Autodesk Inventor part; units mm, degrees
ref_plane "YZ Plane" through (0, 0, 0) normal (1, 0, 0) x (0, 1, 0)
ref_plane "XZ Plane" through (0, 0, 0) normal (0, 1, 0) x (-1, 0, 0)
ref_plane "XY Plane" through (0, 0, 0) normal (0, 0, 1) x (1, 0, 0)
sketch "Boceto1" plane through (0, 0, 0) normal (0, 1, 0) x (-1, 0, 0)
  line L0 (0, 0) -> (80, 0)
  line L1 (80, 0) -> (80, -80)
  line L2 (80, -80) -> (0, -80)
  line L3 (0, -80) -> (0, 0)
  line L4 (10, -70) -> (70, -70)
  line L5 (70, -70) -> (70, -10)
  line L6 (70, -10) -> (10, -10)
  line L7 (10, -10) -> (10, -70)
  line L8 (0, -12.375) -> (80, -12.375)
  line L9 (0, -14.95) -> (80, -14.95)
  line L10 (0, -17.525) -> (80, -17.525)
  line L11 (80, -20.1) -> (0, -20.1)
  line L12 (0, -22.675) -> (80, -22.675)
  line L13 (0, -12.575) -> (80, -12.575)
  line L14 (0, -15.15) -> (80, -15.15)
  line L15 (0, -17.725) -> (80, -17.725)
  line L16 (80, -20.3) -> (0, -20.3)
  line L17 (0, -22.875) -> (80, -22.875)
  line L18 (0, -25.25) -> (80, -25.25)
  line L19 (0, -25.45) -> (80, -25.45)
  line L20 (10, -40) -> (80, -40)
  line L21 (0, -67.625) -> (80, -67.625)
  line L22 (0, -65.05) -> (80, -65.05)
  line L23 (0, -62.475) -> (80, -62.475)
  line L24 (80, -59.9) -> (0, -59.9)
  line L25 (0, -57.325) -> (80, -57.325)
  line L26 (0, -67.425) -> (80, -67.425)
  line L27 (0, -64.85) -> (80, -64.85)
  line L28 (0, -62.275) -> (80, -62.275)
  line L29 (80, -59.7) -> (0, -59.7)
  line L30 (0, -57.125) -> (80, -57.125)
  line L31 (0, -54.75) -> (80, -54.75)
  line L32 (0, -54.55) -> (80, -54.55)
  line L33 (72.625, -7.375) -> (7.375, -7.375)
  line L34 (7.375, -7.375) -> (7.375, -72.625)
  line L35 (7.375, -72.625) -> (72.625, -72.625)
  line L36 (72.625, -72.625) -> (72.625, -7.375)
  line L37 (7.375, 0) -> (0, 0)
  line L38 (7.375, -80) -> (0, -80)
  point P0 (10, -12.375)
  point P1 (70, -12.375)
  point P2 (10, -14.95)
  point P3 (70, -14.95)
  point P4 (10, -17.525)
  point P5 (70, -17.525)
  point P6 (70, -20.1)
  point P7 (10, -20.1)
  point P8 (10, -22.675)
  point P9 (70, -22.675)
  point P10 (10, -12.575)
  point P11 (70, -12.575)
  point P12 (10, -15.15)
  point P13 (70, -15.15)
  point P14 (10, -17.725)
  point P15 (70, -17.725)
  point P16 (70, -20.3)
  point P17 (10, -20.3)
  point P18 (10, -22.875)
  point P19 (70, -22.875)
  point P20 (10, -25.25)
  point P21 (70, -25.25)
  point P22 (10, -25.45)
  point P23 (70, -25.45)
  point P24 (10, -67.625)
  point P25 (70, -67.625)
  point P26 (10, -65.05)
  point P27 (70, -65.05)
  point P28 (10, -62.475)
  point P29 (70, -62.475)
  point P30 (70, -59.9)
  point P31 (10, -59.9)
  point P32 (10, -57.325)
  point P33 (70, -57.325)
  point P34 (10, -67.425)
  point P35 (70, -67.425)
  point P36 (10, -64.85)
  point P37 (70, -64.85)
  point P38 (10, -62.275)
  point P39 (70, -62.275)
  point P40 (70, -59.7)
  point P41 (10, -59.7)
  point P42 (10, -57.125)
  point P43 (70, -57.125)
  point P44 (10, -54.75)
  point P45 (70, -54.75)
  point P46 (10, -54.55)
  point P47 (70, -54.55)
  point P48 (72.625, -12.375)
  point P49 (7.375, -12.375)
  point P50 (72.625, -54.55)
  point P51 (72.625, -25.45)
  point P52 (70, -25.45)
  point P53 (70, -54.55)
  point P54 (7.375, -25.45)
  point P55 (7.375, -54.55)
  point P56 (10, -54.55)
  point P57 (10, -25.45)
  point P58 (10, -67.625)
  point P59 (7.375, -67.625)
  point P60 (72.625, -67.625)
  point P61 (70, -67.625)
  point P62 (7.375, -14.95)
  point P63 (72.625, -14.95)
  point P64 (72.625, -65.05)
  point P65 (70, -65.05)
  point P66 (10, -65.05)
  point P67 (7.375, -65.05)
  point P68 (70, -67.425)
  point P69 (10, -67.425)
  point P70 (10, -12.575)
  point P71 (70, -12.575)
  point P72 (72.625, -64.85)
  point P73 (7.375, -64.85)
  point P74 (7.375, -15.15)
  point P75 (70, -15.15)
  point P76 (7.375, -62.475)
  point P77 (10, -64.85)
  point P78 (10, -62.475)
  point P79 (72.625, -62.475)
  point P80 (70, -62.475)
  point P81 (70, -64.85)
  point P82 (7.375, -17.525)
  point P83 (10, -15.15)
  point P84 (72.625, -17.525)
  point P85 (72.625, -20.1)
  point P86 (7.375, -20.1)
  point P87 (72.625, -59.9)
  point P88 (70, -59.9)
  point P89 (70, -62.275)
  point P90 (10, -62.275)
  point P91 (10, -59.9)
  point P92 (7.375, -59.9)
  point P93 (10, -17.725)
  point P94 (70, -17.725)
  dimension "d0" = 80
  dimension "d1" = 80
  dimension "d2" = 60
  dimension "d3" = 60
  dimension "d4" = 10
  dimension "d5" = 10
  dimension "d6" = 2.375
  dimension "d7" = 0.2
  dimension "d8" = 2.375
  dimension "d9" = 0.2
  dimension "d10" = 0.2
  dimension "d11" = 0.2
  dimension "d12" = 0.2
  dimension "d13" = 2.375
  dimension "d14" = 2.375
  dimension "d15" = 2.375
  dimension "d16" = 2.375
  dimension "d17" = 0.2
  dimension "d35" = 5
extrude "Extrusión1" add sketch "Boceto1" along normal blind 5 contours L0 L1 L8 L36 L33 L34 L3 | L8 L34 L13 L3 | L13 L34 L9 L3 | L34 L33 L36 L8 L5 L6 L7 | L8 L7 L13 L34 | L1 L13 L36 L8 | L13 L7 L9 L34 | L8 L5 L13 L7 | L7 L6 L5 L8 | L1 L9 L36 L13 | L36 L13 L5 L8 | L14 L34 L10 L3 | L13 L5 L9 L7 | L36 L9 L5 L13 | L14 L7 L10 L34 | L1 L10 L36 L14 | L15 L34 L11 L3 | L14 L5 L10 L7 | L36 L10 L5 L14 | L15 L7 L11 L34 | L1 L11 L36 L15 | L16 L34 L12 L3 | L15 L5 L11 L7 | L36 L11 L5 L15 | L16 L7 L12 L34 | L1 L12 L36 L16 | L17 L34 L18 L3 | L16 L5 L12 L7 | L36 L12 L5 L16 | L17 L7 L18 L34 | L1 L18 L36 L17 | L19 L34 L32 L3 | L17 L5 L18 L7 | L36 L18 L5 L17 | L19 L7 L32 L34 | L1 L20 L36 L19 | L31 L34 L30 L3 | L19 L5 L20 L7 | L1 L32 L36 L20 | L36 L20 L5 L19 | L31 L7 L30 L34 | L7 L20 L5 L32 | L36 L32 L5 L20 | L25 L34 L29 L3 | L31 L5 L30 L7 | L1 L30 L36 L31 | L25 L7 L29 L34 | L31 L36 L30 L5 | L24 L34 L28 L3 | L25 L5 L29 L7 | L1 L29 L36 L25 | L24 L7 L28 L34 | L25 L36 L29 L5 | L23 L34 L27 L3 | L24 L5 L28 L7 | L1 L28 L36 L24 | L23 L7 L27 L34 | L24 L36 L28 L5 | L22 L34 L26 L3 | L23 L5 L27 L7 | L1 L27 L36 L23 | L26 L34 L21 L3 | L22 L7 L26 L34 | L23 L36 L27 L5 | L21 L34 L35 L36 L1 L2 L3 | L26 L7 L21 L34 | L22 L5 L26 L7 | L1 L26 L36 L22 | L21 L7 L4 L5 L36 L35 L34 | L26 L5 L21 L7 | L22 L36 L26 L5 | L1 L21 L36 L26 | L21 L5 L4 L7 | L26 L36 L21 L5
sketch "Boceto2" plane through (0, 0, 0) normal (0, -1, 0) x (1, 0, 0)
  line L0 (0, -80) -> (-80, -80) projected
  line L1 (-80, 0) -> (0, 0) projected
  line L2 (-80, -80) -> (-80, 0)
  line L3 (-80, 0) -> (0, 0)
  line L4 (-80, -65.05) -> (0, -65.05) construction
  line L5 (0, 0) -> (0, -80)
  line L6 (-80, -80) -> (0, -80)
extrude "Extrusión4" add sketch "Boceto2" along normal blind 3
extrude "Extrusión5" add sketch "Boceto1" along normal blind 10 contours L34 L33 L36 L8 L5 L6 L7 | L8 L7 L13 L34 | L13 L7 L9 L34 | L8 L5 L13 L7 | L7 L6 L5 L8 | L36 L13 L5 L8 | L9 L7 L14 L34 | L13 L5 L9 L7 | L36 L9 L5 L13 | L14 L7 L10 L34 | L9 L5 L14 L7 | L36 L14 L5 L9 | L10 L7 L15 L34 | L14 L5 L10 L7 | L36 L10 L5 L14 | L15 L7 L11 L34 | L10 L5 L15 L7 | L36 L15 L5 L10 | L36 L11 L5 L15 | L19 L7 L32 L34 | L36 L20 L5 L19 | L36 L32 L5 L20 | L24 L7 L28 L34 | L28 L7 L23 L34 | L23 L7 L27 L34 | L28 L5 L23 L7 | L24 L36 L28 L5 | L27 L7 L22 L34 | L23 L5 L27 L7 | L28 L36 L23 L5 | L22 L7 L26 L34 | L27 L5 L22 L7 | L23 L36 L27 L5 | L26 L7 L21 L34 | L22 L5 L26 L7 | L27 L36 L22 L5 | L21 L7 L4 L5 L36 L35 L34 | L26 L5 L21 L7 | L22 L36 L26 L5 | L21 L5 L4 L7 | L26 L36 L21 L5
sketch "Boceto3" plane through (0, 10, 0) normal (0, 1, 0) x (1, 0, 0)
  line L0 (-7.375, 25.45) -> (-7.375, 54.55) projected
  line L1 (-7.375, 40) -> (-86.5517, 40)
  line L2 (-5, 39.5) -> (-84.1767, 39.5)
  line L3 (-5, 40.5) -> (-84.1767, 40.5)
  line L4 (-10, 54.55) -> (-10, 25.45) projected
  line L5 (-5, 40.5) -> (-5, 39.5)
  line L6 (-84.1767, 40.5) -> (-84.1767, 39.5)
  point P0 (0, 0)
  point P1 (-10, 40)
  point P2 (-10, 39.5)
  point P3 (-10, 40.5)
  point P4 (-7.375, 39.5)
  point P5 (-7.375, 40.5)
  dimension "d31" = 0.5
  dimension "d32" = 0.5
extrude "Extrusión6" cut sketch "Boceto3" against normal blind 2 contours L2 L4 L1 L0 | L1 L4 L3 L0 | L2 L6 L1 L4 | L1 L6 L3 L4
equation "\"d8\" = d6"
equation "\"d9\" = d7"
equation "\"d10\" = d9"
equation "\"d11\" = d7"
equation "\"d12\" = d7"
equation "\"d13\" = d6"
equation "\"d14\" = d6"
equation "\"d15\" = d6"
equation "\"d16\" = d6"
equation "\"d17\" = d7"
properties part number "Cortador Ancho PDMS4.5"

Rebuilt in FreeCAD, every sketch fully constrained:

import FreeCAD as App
import Part
import Sketcher
Q = App.Units.Quantity


def add_polygon(sketch, points):
    """Adds a closed chain of lines whose ends are joined by coincident constraints."""
    first, n = sketch.GeometryCount, len(points)
    for a, b in zip(points, points[1:] + points[:1]):
        sketch.addGeometry(Part.LineSegment(App.Vector(*a, 0), App.Vector(*b, 0)), False)
    for i in range(n):
        sketch.addConstraint(Sketcher.Constraint("Coincident", first + i, 2, first + (i + 1) % n, 1))

doc = App.newDocument("Part")
params = doc.addObject("Spreadsheet::Sheet", "Params")
for row, (alias, value) in enumerate([
    ("sketch1_width", "80 mm"),
    ("sketch1_height", "29.1 mm"),
    ("pad1_length", "5 mm"),
    ("sketch2_width", "80 mm"),
    ("pad2_length", "3 mm"),
    ("sketch3_width", "60 mm"),
    ("sketch3_height", "29.1 mm"),
    ("sketch3_width2", "65.25 mm"),
    ("pad3_length", "10 mm"),
    ("sketch4_height", "1 mm"),
    ("pocket1_length", "2 mm"),
], start=1):
    params.set(f"A{row}", alias)
    params.set(f"B{row}", "=" + value)
    params.setAlias(f"B{row}", alias)

body = doc.addObject("PartDesign::Body", "Body")
body.AllowCompound = True

# Sketch on XZ plane
sketch1 = body.newObject("Sketcher::SketchObject", "Sketch")
sketch1.AttachmentSupport = (doc.getObject("XZ_Plane"), [""])
sketch1.MapMode = "FlatFace"
add_polygon(sketch1, [(0, 0), (0, -14.9), (-80, -14.9), (-80, 0)])  # lines 0-3
add_polygon(sketch1, [(0, -15.2), (0, -17.5), (-80, -17.5), (-80, -15.2)])  # lines 4-7
add_polygon(sketch1, [(0, -17.7), (0, -20.1), (-80, -20.1), (-80, -17.7)])  # lines 8-11
add_polygon(sketch1, [(0, -20.3), (0, -22.7), (-80, -22.7), (-80, -20.3)])  # lines 12-15
add_polygon(sketch1, [(0, -22.9), (0, -25.2), (-80, -25.2), (-80, -22.9)])  # lines 16-19
add_polygon(sketch1, [(0, -25.4), (0, -54.5), (-80, -54.5), (-80, -25.4)])  # lines 20-23
add_polygon(sketch1, [(0, -54.8), (0, -57.1), (-80, -57.1), (-80, -54.8)])  # lines 24-27
add_polygon(sketch1, [(0, -57.3), (0, -59.7), (-80, -59.7), (-80, -57.3)])  # lines 28-31
add_polygon(sketch1, [(0, -59.9), (0, -62.3), (-80, -62.3), (-80, -59.9)])  # lines 32-35
add_polygon(sketch1, [(0, -62.5), (0, -64.8), (-80, -64.8), (-80, -62.5)])  # lines 36-39
add_polygon(sketch1, [(0, -65), (0, -80), (-80, -80), (-80, -65)])  # lines 40-43
sketch1.addConstraint(Sketcher.Constraint("Vertical", 0))
sketch1.addConstraint(Sketcher.Constraint("Horizontal", 1))
sketch1.addConstraint(Sketcher.Constraint("Vertical", 2))
sketch1.addConstraint(Sketcher.Constraint("Horizontal", 3))
sketch1.addConstraint(Sketcher.Constraint("Vertical", 4))
sketch1.addConstraint(Sketcher.Constraint("Horizontal", 5))
sketch1.addConstraint(Sketcher.Constraint("Vertical", 6))
sketch1.addConstraint(Sketcher.Constraint("Horizontal", 7))
sketch1.addConstraint(Sketcher.Constraint("Vertical", 8))
sketch1.addConstraint(Sketcher.Constraint("Horizontal", 9))
sketch1.addConstraint(Sketcher.Constraint("Vertical", 10))
sketch1.addConstraint(Sketcher.Constraint("Horizontal", 11))
sketch1.addConstraint(Sketcher.Constraint("Vertical", 12))
sketch1.addConstraint(Sketcher.Constraint("Horizontal", 13))
sketch1.addConstraint(Sketcher.Constraint("Vertical", 14))
sketch1.addConstraint(Sketcher.Constraint("Horizontal", 15))
sketch1.addConstraint(Sketcher.Constraint("Vertical", 16))
sketch1.addConstraint(Sketcher.Constraint("Horizontal", 17))
sketch1.addConstraint(Sketcher.Constraint("Vertical", 18))
sketch1.addConstraint(Sketcher.Constraint("Horizontal", 19))
sketch1.addConstraint(Sketcher.Constraint("Vertical", 20))
sketch1.addConstraint(Sketcher.Constraint("Horizontal", 21))
sketch1.addConstraint(Sketcher.Constraint("Vertical", 22))
sketch1.addConstraint(Sketcher.Constraint("Horizontal", 23))
sketch1.addConstraint(Sketcher.Constraint("Vertical", 24))
sketch1.addConstraint(Sketcher.Constraint("Horizontal", 25))
sketch1.addConstraint(Sketcher.Constraint("Vertical", 26))
sketch1.addConstraint(Sketcher.Constraint("Horizontal", 27))
sketch1.addConstraint(Sketcher.Constraint("Vertical", 28))
sketch1.addConstraint(Sketcher.Constraint("Horizontal", 29))
sketch1.addConstraint(Sketcher.Constraint("Vertical", 30))
sketch1.addConstraint(Sketcher.Constraint("Horizontal", 31))
sketch1.addConstraint(Sketcher.Constraint("Vertical", 32))
sketch1.addConstraint(Sketcher.Constraint("Horizontal", 33))
sketch1.addConstraint(Sketcher.Constraint("Vertical", 34))
sketch1.addConstraint(Sketcher.Constraint("Horizontal", 35))
sketch1.addConstraint(Sketcher.Constraint("Vertical", 36))
sketch1.addConstraint(Sketcher.Constraint("Horizontal", 37))
sketch1.addConstraint(Sketcher.Constraint("Vertical", 38))
sketch1.addConstraint(Sketcher.Constraint("Horizontal", 39))
sketch1.addConstraint(Sketcher.Constraint("Vertical", 40))
sketch1.addConstraint(Sketcher.Constraint("Horizontal", 41))
sketch1.addConstraint(Sketcher.Constraint("Vertical", 42))
sketch1.addConstraint(Sketcher.Constraint("Horizontal", 43))
sketch1.addConstraint(Sketcher.Constraint("Coincident", 3, 2, -1, 1))
sketch1.addConstraint(Sketcher.Constraint("PointOnObject", 4, 2, -2))
sketch1.addConstraint(Sketcher.Constraint("PointOnObject", 8, 2, -2))
sketch1.addConstraint(Sketcher.Constraint("PointOnObject", 12, 2, -2))
sketch1.addConstraint(Sketcher.Constraint("PointOnObject", 16, 2, -2))
sketch1.addConstraint(Sketcher.Constraint("PointOnObject", 20, 2, -2))
sketch1.addConstraint(Sketcher.Constraint("PointOnObject", 24, 2, -2))
sketch1.addConstraint(Sketcher.Constraint("PointOnObject", 28, 2, -2))
sketch1.addConstraint(Sketcher.Constraint("PointOnObject", 32, 2, -2))
sketch1.addConstraint(Sketcher.Constraint("PointOnObject", 36, 2, -2))
sketch1.addConstraint(Sketcher.Constraint("PointOnObject", 40, 2, -2))
sketch1.addConstraint(Sketcher.Constraint("Vertical", 2, 2, 5, 2))
sketch1.addConstraint(Sketcher.Constraint("Vertical", 6, 2, 9, 2))
sketch1.addConstraint(Sketcher.Constraint("Vertical", 10, 2, 13, 2))
sketch1.addConstraint(Sketcher.Constraint("Vertical", 14, 2, 17, 2))
sketch1.addConstraint(Sketcher.Constraint("Vertical", 18, 2, 21, 2))
sketch1.addConstraint(Sketcher.Constraint("Vertical", 22, 2, 25, 2))
sketch1.addConstraint(Sketcher.Constraint("Vertical", 26, 2, 29, 2))
sketch1.addConstraint(Sketcher.Constraint("Vertical", 30, 2, 33, 2))
sketch1.addConstraint(Sketcher.Constraint("Vertical", 34, 2, 37, 2))
sketch1.addConstraint(Sketcher.Constraint("Vertical", 38, 2, 41, 2))
sketch1.addConstraint(Sketcher.Constraint("Equal", 6, 8))
sketch1.addConstraint(Sketcher.Constraint("Equal", 10, 12))
sketch1.addConstraint(Sketcher.Constraint("Equal", 14, 16))
sketch1.addConstraint(Sketcher.Constraint("Equal", 18, 24))
sketch1.addConstraint(Sketcher.Constraint("Equal", 26, 28))
sketch1.addConstraint(Sketcher.Constraint("Equal", 30, 32))
sketch1.addConstraint(Sketcher.Constraint("Equal", 34, 36))
sketch1.addConstraint(Sketcher.Constraint("Equal", 2, 40))
sketch1.addConstraint(Sketcher.Constraint("DistanceX", 1, 2, 1, 1, Q("80 mm")))
sketch1.addConstraint(Sketcher.Constraint("DistanceY", 40, 2, -1, 1, Q("80 mm")))
sketch1.addConstraint(Sketcher.Constraint("DistanceY", 6, 2, 1, 2, Q("0.2 mm")))
sketch1.addConstraint(Sketcher.Constraint("DistanceY", 10, 2, 5, 2, Q("0.2 mm")))
sketch1.addConstraint(Sketcher.Constraint("DistanceY", 14, 2, 9, 2, Q("0.2 mm")))
sketch1.addConstraint(Sketcher.Constraint("DistanceY", 18, 2, 13, 2, Q("0.2 mm")))
sketch1.addConstraint(Sketcher.Constraint("DistanceY", 22, 2, 17, 2, Q("0.2 mm")))
sketch1.addConstraint(Sketcher.Constraint("DistanceY", 26, 2, 21, 2, Q("0.2 mm")))
sketch1.addConstraint(Sketcher.Constraint("DistanceY", 30, 2, 25, 2, Q("0.2 mm")))
sketch1.addConstraint(Sketcher.Constraint("DistanceY", 34, 2, 29, 2, Q("0.2 mm")))
sketch1.addConstraint(Sketcher.Constraint("DistanceY", 38, 2, 33, 2, Q("0.2 mm")))
sketch1.addConstraint(Sketcher.Constraint("DistanceY", 42, 2, 37, 2, Q("0.2 mm")))
sketch1.addConstraint(Sketcher.Constraint("DistanceY", 4, 2, 4, 1, Q("2.375 mm")))
sketch1.addConstraint(Sketcher.Constraint("DistanceY", 20, 2, 20, 1, Q("29.1 mm")))
sketch1.setExpression("Constraints[117]", "Params.sketch1_width")
sketch1.setExpression("Constraints[130]", "Params.sketch1_height")
pad1 = body.newObject("PartDesign::Pad", "Pad")
pad1.Profile = sketch1
pad1.setExpression("Length", "Params.pad1_length")
pad1.Reversed = True

# Sketch on XZ plane
sketch2 = body.newObject("Sketcher::SketchObject", "Sketch001")
sketch2.AttachmentSupport = (doc.getObject("XZ_Plane"), [""])
sketch2.MapMode = "FlatFace"
add_polygon(sketch2, [(-80, -80), (0, -80), (0, 0), (-80, 0)])  # lines 0-3
sketch2.addConstraint(Sketcher.Constraint("Horizontal", 0))
sketch2.addConstraint(Sketcher.Constraint("Vertical", 1))
sketch2.addConstraint(Sketcher.Constraint("Horizontal", 2))
sketch2.addConstraint(Sketcher.Constraint("Vertical", 3))
sketch2.addConstraint(Sketcher.Constraint("Coincident", 1, 2, -1, 1))
sketch2.addConstraint(Sketcher.Constraint("Equal", 2, 1))
sketch2.addConstraint(Sketcher.Constraint("DistanceX", 0, 1, 0, 2, Q("80 mm")))
sketch2.setExpression("Constraints[10]", "Params.sketch2_width")
pad2 = body.newObject("PartDesign::Pad", "Pad001")
pad2.Profile = sketch2
pad2.setExpression("Length", "Params.pad2_length")

# Sketch on XZ plane
sketch3 = body.newObject("Sketcher::SketchObject", "Sketch002")
sketch3.AttachmentSupport = (doc.getObject("XZ_Plane"), [""])
sketch3.MapMode = "FlatFace"
add_polygon(sketch3, [(-7.4, -7.4), (-7.4, -20.1), (-10, -20.1), (-10, -17.7), (-70, -17.7), (-70, -20.1), (-72.6, -20.1), (-72.6, -7.4)])  # lines 0-7
add_polygon(sketch3, [(-10, -25.4), (-7.4, -25.4), (-7.4, -54.5), (-10, -54.5)])  # lines 8-11
add_polygon(sketch3, [(-72.6, -25.4), (-70, -25.4), (-70, -54.5), (-72.6, -54.5)])  # lines 12-15
add_polygon(sketch3, [(-10, -59.9), (-7.4, -59.9), (-7.4, -72.6), (-72.6, -72.6), (-72.6, -59.9), (-70, -59.9), (-70, -62.3), (-10, -62.3)])  # lines 16-23
sketch3.addConstraint(Sketcher.Constraint("Vertical", 0))
sketch3.addConstraint(Sketcher.Constraint("Horizontal", 1))
sketch3.addConstraint(Sketcher.Constraint("Vertical", 2))
sketch3.addConstraint(Sketcher.Constraint("Horizontal", 3))
sketch3.addConstraint(Sketcher.Constraint("Vertical", 4))
sketch3.addConstraint(Sketcher.Constraint("Horizontal", 5))
sketch3.addConstraint(Sketcher.Constraint("Vertical", 6))
sketch3.addConstraint(Sketcher.Constraint("Horizontal", 7))
sketch3.addConstraint(Sketcher.Constraint("Horizontal", 8))
sketch3.addConstraint(Sketcher.Constraint("Vertical", 9))
sketch3.addConstraint(Sketcher.Constraint("Horizontal", 10))
sketch3.addConstraint(Sketcher.Constraint("Vertical", 11))
sketch3.addConstraint(Sketcher.Constraint("Horizontal", 12))
sketch3.addConstraint(Sketcher.Constraint("Vertical", 13))
sketch3.addConstraint(Sketcher.Constraint("Horizontal", 14))
sketch3.addConstraint(Sketcher.Constraint("Vertical", 15))
sketch3.addConstraint(Sketcher.Constraint("Horizontal", 16))
sketch3.addConstraint(Sketcher.Constraint("Vertical", 17))
sketch3.addConstraint(Sketcher.Constraint("Horizontal", 18))
sketch3.addConstraint(Sketcher.Constraint("Vertical", 19))
sketch3.addConstraint(Sketcher.Constraint("Horizontal", 20))
sketch3.addConstraint(Sketcher.Constraint("Vertical", 21))
sketch3.addConstraint(Sketcher.Constraint("Horizontal", 22))
sketch3.addConstraint(Sketcher.Constraint("Vertical", 23))
sketch3.addConstraint(Sketcher.Constraint("Horizontal", 1, 2, 4, 2))
sketch3.addConstraint(Sketcher.Constraint("Horizontal", 11, 2, 12, 2))
sketch3.addConstraint(Sketcher.Constraint("Horizontal", 10, 2, 13, 2))
sketch3.addConstraint(Sketcher.Constraint("Horizontal", 16, 2, 19, 2))
sketch3.addConstraint(Sketcher.Constraint("Vertical", 7, 2, 8, 2))
sketch3.addConstraint(Sketcher.Constraint("Vertical", 2, 2, 10, 2))
sketch3.addConstraint(Sketcher.Constraint("Vertical", 4, 2, 12, 2))
sketch3.addConstraint(Sketcher.Constraint("Vertical", 6, 2, 14, 2))
sketch3.addConstraint(Sketcher.Constraint("Vertical", 9, 2, 16, 2))
sketch3.addConstraint(Sketcher.Constraint("Vertical", 15, 2, 18, 2))
sketch3.addConstraint(Sketcher.Constraint("Vertical", 13, 2, 20, 2))
sketch3.addConstraint(Sketcher.Constraint("Vertical", 11, 2, 22, 2))
sketch3.addConstraint(Sketcher.Constraint("Equal", 1, 5))
sketch3.addConstraint(Sketcher.Constraint("Equal", 6, 17))
sketch3.addConstraint(Sketcher.Constraint("Equal", 4, 21))
sketch3.addConstraint(Sketcher.Constraint("DistanceX", 3, 2, 3, 1, Q("60 mm")))
sketch3.addConstraint(Sketcher.Constraint("DistanceX", 1, 2, -1, 1, Q("10 mm")))
sketch3.addConstraint(Sketcher.Constraint("DistanceY", 2, 1, 2, 2, Q("2.375 mm")))
sketch3.addConstraint(Sketcher.Constraint("DistanceY", 9, 2, 9, 1, Q("29.1 mm")))
sketch3.addConstraint(Sketcher.Constraint("DistanceX", 7, 1, 7, 2, Q("65.25 mm")))
sketch3.addConstraint(Sketcher.Constraint("DistanceY", 0, 2, -1, 1, Q("20.1 mm")))
sketch3.addConstraint(Sketcher.Constraint("DistanceY", 16, 2, -1, 1, Q("59.9 mm")))
sketch3.addConstraint(Sketcher.Constraint("DistanceY", 0, 2, 0, 1, Q("12.725 mm")))
sketch3.addConstraint(Sketcher.Constraint("DistanceY", 8, 2, -1, 1, Q("25.45 mm")))
sketch3.setExpression("Constraints[63]", "Params.sketch3_width")
sketch3.setExpression("Constraints[66]", "Params.sketch3_height")
sketch3.setExpression("Constraints[67]", "Params.sketch3_width2")
pad3 = body.newObject("PartDesign::Pad", "Pad002")
pad3.Profile = sketch3
pad3.setExpression("Length", "Params.pad3_length")
pad3.Reversed = True

# Sketch on XZ plane
sketch4 = body.newObject("Sketcher::SketchObject", "Sketch003")
sketch4.AttachmentSupport = (doc.getObject("XZ_Plane"), [""])
sketch4.MapMode = "FlatFace"
sketch4.AttachmentOffset = App.Placement(App.Vector(0, 0, -10), App.Rotation())
add_polygon(sketch4, [(-7.4, -39.5), (-7.4, -40.5), (-84.2, -40.5), (-84.2, -39.5)])  # lines 0-3
sketch4.addConstraint(Sketcher.Constraint("Vertical", 0))
sketch4.addConstraint(Sketcher.Constraint("Horizontal", 1))
sketch4.addConstraint(Sketcher.Constraint("Vertical", 2))
sketch4.addConstraint(Sketcher.Constraint("Horizontal", 3))
sketch4.addConstraint(Sketcher.Constraint("DistanceY", 0, 2, 0, 1, Q("1 mm")))
sketch4.addConstraint(Sketcher.Constraint("DistanceY", 0, 2, -1, 1, Q("40.5 mm")))
sketch4.addConstraint(Sketcher.Constraint("DistanceX", 1, 2, 1, 1, Q("76.8017 mm")))
sketch4.addConstraint(Sketcher.Constraint("DistanceX", 0, 2, -1, 1, Q("7.375 mm")))
sketch4.setExpression("Constraints[8]", "Params.sketch4_height")
pocket1 = body.newObject("PartDesign::Pocket", "Pocket")
pocket1.Profile = sketch4
pocket1.setExpression("Length", "Params.pocket1_length")
pocket1.Reversed = True

doc.recompute()
